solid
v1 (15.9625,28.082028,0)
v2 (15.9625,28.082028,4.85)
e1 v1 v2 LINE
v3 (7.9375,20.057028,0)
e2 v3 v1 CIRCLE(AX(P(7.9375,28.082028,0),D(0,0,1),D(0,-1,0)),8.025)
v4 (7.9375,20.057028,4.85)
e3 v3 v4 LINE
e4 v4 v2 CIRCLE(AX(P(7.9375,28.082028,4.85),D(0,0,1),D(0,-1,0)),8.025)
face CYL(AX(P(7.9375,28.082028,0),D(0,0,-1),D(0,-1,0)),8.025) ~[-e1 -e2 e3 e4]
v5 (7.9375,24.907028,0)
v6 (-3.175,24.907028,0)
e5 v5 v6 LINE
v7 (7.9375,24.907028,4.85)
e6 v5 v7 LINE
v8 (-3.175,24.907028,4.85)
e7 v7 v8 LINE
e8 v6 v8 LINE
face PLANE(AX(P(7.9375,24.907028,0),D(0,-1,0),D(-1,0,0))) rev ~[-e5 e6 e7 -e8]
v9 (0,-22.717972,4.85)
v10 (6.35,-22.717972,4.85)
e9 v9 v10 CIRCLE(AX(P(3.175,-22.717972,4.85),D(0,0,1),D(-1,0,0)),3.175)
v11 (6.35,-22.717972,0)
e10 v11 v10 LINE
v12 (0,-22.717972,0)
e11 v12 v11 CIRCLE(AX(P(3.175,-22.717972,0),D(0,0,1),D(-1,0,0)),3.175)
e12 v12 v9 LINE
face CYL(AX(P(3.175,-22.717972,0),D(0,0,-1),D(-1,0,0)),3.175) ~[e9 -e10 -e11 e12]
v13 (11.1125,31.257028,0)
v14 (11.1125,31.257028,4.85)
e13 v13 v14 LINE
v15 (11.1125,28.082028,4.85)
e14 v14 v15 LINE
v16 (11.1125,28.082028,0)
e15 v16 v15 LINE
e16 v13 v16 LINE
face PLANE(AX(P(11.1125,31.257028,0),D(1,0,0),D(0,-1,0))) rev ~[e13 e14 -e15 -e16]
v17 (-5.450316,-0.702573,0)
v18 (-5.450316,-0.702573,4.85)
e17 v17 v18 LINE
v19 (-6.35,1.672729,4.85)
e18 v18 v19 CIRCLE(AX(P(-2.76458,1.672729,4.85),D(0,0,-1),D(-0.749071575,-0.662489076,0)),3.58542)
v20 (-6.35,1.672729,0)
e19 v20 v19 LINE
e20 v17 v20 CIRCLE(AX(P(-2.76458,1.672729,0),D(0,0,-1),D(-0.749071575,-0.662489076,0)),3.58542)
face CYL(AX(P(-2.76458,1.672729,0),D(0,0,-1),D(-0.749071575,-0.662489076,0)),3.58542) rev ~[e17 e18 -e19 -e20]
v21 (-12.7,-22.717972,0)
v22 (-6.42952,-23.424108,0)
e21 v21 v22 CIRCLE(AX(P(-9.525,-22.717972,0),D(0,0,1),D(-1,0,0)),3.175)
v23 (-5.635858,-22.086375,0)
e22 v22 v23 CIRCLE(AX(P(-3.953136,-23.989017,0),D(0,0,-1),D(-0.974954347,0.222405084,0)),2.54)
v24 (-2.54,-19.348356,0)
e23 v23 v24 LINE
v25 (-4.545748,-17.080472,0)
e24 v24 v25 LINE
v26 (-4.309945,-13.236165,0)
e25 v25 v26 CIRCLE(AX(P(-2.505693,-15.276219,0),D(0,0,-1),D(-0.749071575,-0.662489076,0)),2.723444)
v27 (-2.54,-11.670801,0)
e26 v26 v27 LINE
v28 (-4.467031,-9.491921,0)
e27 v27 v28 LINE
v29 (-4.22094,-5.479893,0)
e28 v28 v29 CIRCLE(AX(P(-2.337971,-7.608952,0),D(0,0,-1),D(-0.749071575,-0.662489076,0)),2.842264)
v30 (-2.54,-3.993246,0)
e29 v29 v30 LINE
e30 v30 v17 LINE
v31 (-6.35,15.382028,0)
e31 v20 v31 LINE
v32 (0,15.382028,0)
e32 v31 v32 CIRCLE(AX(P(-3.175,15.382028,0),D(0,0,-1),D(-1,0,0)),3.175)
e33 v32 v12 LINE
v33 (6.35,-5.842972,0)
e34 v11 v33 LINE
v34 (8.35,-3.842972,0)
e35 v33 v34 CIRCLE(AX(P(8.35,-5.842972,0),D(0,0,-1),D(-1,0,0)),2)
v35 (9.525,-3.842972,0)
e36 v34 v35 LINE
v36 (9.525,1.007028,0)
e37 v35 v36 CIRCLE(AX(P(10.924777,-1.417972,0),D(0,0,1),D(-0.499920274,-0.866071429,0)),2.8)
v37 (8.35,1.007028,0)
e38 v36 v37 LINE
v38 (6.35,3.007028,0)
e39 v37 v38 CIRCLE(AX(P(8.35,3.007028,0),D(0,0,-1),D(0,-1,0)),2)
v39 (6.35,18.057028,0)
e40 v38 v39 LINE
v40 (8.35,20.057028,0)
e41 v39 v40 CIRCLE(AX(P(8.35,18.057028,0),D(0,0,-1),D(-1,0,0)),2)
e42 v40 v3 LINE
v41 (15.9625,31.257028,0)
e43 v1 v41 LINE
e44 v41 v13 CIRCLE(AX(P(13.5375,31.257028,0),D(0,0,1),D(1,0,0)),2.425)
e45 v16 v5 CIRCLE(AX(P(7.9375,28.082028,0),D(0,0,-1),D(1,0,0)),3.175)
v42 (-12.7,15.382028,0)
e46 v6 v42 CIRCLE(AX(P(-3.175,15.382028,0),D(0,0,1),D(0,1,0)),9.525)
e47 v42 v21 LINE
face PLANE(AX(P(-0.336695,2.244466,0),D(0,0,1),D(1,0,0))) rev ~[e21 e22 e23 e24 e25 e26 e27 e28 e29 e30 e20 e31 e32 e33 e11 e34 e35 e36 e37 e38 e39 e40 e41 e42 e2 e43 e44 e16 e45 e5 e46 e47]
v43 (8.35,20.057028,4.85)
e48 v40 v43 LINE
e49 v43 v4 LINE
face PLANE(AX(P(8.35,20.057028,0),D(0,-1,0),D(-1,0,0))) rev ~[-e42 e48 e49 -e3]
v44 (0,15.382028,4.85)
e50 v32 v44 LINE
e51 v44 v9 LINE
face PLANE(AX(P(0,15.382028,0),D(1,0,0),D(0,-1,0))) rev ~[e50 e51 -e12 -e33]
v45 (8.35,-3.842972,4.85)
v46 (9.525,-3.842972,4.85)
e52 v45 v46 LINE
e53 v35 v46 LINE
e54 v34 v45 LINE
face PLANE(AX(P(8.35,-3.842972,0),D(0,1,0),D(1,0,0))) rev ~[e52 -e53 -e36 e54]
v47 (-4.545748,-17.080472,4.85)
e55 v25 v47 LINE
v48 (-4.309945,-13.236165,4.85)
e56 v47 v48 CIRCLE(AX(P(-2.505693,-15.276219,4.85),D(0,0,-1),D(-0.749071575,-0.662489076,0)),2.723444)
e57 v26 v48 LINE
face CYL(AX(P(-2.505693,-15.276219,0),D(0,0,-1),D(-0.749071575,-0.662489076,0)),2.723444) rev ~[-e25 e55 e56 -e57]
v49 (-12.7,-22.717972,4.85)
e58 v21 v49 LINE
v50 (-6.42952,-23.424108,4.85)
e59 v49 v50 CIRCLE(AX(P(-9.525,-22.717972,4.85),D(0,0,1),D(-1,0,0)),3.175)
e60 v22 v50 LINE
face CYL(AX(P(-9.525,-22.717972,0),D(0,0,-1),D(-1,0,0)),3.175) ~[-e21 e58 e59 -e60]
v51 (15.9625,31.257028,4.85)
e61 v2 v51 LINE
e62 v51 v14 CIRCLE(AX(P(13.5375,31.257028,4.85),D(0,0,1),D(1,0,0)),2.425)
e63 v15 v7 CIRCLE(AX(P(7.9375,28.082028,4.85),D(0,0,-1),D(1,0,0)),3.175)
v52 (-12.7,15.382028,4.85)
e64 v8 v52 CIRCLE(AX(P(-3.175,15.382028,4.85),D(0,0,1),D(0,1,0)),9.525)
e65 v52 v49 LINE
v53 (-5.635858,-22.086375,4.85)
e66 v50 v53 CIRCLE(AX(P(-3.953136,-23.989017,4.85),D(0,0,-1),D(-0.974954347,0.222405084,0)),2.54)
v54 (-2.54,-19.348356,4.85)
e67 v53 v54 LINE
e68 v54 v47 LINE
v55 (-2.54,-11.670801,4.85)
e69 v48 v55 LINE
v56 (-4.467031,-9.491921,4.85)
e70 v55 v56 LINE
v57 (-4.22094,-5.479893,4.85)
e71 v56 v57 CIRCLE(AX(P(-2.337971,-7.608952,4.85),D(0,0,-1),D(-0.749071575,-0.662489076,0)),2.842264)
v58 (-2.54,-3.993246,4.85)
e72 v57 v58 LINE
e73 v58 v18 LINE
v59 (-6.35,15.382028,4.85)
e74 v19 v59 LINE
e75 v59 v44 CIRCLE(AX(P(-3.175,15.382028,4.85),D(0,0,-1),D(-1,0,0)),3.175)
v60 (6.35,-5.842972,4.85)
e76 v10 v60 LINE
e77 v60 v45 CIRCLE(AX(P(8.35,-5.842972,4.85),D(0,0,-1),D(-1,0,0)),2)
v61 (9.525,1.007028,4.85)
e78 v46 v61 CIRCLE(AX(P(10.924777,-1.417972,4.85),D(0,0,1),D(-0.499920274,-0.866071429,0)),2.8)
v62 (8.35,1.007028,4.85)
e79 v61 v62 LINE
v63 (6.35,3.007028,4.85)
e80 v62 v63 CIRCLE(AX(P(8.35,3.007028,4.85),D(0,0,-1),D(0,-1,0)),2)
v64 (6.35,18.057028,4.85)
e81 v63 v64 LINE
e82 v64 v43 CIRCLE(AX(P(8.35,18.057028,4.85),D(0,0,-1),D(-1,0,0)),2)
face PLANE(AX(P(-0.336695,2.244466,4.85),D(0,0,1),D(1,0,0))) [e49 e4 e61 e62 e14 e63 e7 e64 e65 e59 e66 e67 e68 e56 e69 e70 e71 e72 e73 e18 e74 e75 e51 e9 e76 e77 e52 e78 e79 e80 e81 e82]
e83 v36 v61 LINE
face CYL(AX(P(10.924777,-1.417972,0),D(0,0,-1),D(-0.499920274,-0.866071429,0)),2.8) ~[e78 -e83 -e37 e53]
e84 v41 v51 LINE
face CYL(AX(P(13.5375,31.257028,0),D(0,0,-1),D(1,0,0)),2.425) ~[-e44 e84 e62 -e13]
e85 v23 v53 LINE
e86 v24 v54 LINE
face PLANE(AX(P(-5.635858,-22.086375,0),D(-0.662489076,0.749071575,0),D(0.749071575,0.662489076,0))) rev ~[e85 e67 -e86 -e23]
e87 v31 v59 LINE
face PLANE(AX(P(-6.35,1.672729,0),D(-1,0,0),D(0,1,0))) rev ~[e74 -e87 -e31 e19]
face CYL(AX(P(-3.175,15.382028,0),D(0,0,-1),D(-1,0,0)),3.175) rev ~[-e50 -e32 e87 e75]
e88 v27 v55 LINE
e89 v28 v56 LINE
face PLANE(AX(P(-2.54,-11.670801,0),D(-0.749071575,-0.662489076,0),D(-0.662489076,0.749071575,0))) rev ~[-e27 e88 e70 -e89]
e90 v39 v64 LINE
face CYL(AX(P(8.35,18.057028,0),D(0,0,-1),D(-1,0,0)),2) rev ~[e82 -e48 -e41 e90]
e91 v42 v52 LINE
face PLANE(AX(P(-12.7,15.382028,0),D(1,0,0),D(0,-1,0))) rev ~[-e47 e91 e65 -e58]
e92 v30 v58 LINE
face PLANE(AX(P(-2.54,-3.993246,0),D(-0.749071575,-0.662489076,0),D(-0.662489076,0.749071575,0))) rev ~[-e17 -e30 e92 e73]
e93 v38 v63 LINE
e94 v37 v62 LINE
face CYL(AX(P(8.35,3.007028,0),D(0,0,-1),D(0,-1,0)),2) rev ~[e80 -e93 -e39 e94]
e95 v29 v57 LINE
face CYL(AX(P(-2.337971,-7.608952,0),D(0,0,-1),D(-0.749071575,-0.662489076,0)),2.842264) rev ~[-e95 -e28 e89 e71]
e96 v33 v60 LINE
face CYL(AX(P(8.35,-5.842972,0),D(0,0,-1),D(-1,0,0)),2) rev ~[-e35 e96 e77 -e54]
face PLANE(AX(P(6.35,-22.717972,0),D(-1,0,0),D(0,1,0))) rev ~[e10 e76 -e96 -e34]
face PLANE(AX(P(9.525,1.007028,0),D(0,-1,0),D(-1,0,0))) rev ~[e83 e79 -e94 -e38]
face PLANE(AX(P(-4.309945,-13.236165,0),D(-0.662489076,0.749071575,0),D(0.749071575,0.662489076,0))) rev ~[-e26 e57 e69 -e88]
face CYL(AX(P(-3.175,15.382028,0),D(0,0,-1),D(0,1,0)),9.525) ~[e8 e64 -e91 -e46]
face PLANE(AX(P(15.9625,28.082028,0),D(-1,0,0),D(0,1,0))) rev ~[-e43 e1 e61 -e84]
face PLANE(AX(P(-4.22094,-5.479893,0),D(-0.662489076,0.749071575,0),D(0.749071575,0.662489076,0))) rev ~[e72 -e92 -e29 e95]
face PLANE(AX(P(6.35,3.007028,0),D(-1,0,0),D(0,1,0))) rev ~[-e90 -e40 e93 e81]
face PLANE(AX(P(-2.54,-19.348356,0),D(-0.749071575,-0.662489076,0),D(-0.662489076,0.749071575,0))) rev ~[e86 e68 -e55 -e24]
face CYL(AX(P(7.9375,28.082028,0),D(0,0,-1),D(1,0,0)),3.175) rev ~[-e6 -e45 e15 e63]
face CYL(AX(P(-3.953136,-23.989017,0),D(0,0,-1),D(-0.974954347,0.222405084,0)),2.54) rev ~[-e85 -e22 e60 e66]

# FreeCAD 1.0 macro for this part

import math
import FreeCAD as App
import Part
import Sketcher

V = App.Vector
Q = App.Units.Quantity

doc = App.newDocument("Part")
body = doc.addObject("PartDesign::Body", "Body")

# Sketch on XY plane
sketch1 = body.newObject("Sketcher::SketchObject", "Sketch")
sketch1.AttachmentSupport = (doc.getObject("XY_Plane"), [""])
sketch1.MapMode = "FlatFace"
sketch1.addGeometry([
    Part.LineSegment(V(7.94, 24.91, 0), V(-3.17, 24.91, 0)),  # 0
    Part.ArcOfCircle(Part.Circle(V(-3.17, 15.38, 0), V(0, 0, 1), 9.53), math.radians(90), math.radians(180)),  # 1
    Part.LineSegment(V(-12.7, 15.38, 0), V(-12.7, -22.72, 0)),  # 2
    Part.ArcOfCircle(Part.Circle(V(-9.53, -22.72, 0), V(0, 0, 1), 3.17), math.radians(180), math.radians(347)),  # 3
    Part.ArcOfCircle(Part.Circle(V(-3.95, -23.99, 0), V(0, 0, 1), 2.54), math.radians(131), math.radians(167)),  # 4
    Part.LineSegment(V(-5.64, -22.09, 0), V(-2.54, -19.35, 0)),  # 5
    Part.LineSegment(V(-2.54, -19.35, 0), V(-4.55, -17.08, 0)),  # 6
    Part.ArcOfCircle(Part.Circle(V(-2.51, -15.28, 0), V(0, 0, 1), 2.72), math.radians(131), math.radians(221)),  # 7
    Part.LineSegment(V(-4.31, -13.24, 0), V(-2.54, -11.67, 0)),  # 8
    Part.LineSegment(V(-2.54, -11.67, 0), V(-4.47, -9.49, 0)),  # 9
    Part.ArcOfCircle(Part.Circle(V(-2.34, -7.61, 0), V(0, 0, 1), 2.84), math.radians(131), math.radians(221)),  # 10
    Part.LineSegment(V(-4.22, -5.48, 0), V(-2.54, -3.99, 0)),  # 11
    Part.LineSegment(V(-2.54, -3.99, 0), V(-5.45, -0.7, 0)),  # 12
    Part.ArcOfCircle(Part.Circle(V(-2.76, 1.67, 0), V(0, 0, 1), 3.59), math.radians(-180), math.radians(-139)),  # 13
    Part.LineSegment(V(-6.35, 1.67, 0), V(-6.35, 15.38, 0)),  # 14
    Part.ArcOfCircle(Part.Circle(V(-3.17, 15.38, 0), V(0, 0, 1), 3.17), math.radians(0), math.radians(180)),  # 15
    Part.LineSegment(V(0, 15.38, 0), V(0, -22.72, 0)),  # 16
    Part.ArcOfCircle(Part.Circle(V(3.17, -22.72, 0), V(0, 0, 1), 3.17), math.radians(180), math.radians(360)),  # 17
    Part.LineSegment(V(6.35, -22.72, 0), V(6.35, -5.84, 0)),  # 18
    Part.ArcOfCircle(Part.Circle(V(8.35, -5.84, 0), V(0, 0, 1), 2), math.radians(90), math.radians(180)),  # 19
    Part.LineSegment(V(8.35, -3.84, 0), V(9.53, -3.84, 0)),  # 20
    Part.ArcOfCircle(Part.Circle(V(10.92, -1.42, 0), V(0, 0, 1), 2.8), math.radians(-120), math.radians(120)),  # 21
    Part.LineSegment(V(9.53, 1.01, 0), V(8.35, 1.01, 0)),  # 22
    Part.ArcOfCircle(Part.Circle(V(8.35, 3.01, 0), V(0, 0, 1), 2), math.radians(180), math.radians(270)),  # 23
    Part.LineSegment(V(6.35, 3.01, 0), V(6.35, 18.06, 0)),  # 24
    Part.ArcOfCircle(Part.Circle(V(8.35, 18.06, 0), V(0, 0, 1), 2), math.radians(90), math.radians(180)),  # 25
    Part.LineSegment(V(8.35, 20.06, 0), V(7.94, 20.06, 0)),  # 26
    Part.ArcOfCircle(Part.Circle(V(7.94, 28.08, 0), V(0, 0, 1), 8.03), math.radians(-90), math.radians(0)),  # 27
    Part.LineSegment(V(15.96, 28.08, 0), V(15.96, 31.26, 0)),  # 28
    Part.ArcOfCircle(Part.Circle(V(13.54, 31.26, 0), V(0, 0, 1), 2.42), math.radians(0), math.radians(180)),  # 29
    Part.LineSegment(V(11.11, 31.26, 0), V(11.11, 28.08, 0)),  # 30
    Part.ArcOfCircle(Part.Circle(V(7.94, 28.08, 0), V(0, 0, 1), 3.17), math.radians(-90), math.radians(0)),  # 31
], False)
sketch1.addConstraint([
    Sketcher.Constraint("Tangent", 0, 2, 1, 1),
    Sketcher.Constraint("Tangent", 1, 2, 2, 1),
    Sketcher.Constraint("Tangent", 2, 2, 3, 1),
    Sketcher.Constraint("Tangent", 3, 2, 4, 2),
    Sketcher.Constraint("Tangent", 4, 1, 5, 1),
    Sketcher.Constraint("Coincident", 5, 2, 6, 1),
    Sketcher.Constraint("Tangent", 6, 2, 7, 2),
    Sketcher.Constraint("Tangent", 7, 1, 8, 1),
    Sketcher.Constraint("Coincident", 8, 2, 9, 1),
    Sketcher.Constraint("Tangent", 9, 2, 10, 2),
    Sketcher.Constraint("Tangent", 10, 1, 11, 1),
    Sketcher.Constraint("Coincident", 11, 2, 12, 1),
    Sketcher.Constraint("Tangent", 12, 2, 13, 2),
    Sketcher.Constraint("Tangent", 13, 1, 14, 1),
    Sketcher.Constraint("Tangent", 14, 2, 15, 2),
    Sketcher.Constraint("Tangent", 15, 1, 16, 1),
    Sketcher.Constraint("Tangent", 16, 2, 17, 1),
    Sketcher.Constraint("Tangent", 17, 2, 18, 1),
    Sketcher.Constraint("Tangent", 18, 2, 19, 2),
    Sketcher.Constraint("Tangent", 19, 1, 20, 1),
    Sketcher.Constraint("Coincident", 20, 2, 21, 1),
    Sketcher.Constraint("Coincident", 21, 2, 22, 1),
    Sketcher.Constraint("Tangent", 22, 2, 23, 2),
    Sketcher.Constraint("Tangent", 23, 1, 24, 1),
    Sketcher.Constraint("Tangent", 24, 2, 25, 2),
    Sketcher.Constraint("Tangent", 25, 1, 26, 1),
    Sketcher.Constraint("Tangent", 26, 2, 27, 1),
    Sketcher.Constraint("Tangent", 27, 2, 28, 1),
    Sketcher.Constraint("Tangent", 28, 2, 29, 1),
    Sketcher.Constraint("Tangent", 29, 2, 30, 1),
    Sketcher.Constraint("Tangent", 30, 2, 31, 2),
    Sketcher.Constraint("Tangent", 31, 1, 0, 1),
    Sketcher.Constraint("Horizontal", 0),
    Sketcher.Constraint("Vertical", 2),
    Sketcher.Constraint("Vertical", 14),
    Sketcher.Constraint("Vertical", 16),
    Sketcher.Constraint("Vertical", 18),
    Sketcher.Constraint("Horizontal", 20),
    Sketcher.Constraint("Horizontal", 22),
    Sketcher.Constraint("Vertical", 24),
    Sketcher.Constraint("Horizontal", 26),
    Sketcher.Constraint("Vertical", 28),
    Sketcher.Constraint("Vertical", 30),
    Sketcher.Constraint("Coincident", 15, 3, 1, 3),
    Sketcher.Constraint("Coincident", 31, 3, 27, 3),
    Sketcher.Constraint("Equal", 3, 15),
    Sketcher.Constraint("Equal", 15, 17),
    Sketcher.Constraint("Equal", 19, 23),
    Sketcher.Constraint("Equal", 23, 25),
    Sketcher.Constraint("Equal", 17, 31),
    Sketcher.Constraint("PointOnObject", 15, 1, -2),
    Sketcher.Constraint("Perpendicular", 5, 6),
    Sketcher.Constraint("Perpendicular", 6, 8),
    Sketcher.Constraint("Perpendicular", 8, 9),
    Sketcher.Constraint("Perpendicular", 9, 11),
    Sketcher.Constraint("Perpendicular", 11, 12),
    Sketcher.Constraint("Horizontal", 3, 3, 17, 3),
    Sketcher.Constraint("Vertical", 19, 3, 23, 3),
    Sketcher.Constraint("Vertical", 5, 2, 8, 2),
    Sketcher.Constraint("Vertical", 8, 2, 11, 2),
    Sketcher.Constraint("Vertical", 20, 2, 21, 2),
    Sketcher.Constraint("Radius", 4, Q("0.1 in")),
    Sketcher.Constraint("DistanceY", 2, 2, 2, 1, Q("1.5 in")),
    Sketcher.Constraint("Radius", 1, Q("0.375 in")),
    Sketcher.Constraint("Radius", 3, Q("0.125 in")),
    Sketcher.Constraint("DistanceX", 5, 2, -1, 1, Q("0.1 in")),
    Sketcher.Constraint("Radius", 10, Q("0.1119002 in")),
    Sketcher.Constraint("DistanceX", 0, 2, 0, 1, Q("0.4375 in")),
    Sketcher.Constraint("DistanceY", 28, 1, 28, 2, Q("0.125 in")),
    Sketcher.Constraint("Angle", 5, Q("41.489981 deg")),
    Sketcher.Constraint("Radius", 19, Q("2 mm")),
    Sketcher.Constraint("Radius", 21, Q("2.8 mm")),
    Sketcher.Constraint("Radius", 27, Q("8.025 mm")),
    Sketcher.Constraint("DistanceX", -1, 1, 20, 2, Q("0.375 in")),
    Sketcher.Constraint("Radius", 13, Q("3.58542 mm")),
    Sketcher.Constraint("DistanceY", 14, 1, 14, 2, Q("13.709299 mm")),
    Sketcher.Constraint("DistanceY", 18, 1, 18, 2, Q("16.875 mm")),
    Sketcher.Constraint("DistanceY", 24, 1, 24, 2, Q("15.05 mm")),
    Sketcher.Constraint("Radius", 7, Q("2.723444 mm")),
    Sketcher.Constraint("DistanceY", 8, 2, -1, 1, Q("11.670801 mm")),
    Sketcher.Constraint("DistanceY", 7, 3, 9, 2, Q("5.784298 mm")),
    Sketcher.Constraint("Distance", 11, Q("2.244032 mm")),
])
pad1 = body.newObject("PartDesign::Pad", "Pad")
pad1.Profile = sketch1
pad1.Length = 4.85

doc.recompute()
